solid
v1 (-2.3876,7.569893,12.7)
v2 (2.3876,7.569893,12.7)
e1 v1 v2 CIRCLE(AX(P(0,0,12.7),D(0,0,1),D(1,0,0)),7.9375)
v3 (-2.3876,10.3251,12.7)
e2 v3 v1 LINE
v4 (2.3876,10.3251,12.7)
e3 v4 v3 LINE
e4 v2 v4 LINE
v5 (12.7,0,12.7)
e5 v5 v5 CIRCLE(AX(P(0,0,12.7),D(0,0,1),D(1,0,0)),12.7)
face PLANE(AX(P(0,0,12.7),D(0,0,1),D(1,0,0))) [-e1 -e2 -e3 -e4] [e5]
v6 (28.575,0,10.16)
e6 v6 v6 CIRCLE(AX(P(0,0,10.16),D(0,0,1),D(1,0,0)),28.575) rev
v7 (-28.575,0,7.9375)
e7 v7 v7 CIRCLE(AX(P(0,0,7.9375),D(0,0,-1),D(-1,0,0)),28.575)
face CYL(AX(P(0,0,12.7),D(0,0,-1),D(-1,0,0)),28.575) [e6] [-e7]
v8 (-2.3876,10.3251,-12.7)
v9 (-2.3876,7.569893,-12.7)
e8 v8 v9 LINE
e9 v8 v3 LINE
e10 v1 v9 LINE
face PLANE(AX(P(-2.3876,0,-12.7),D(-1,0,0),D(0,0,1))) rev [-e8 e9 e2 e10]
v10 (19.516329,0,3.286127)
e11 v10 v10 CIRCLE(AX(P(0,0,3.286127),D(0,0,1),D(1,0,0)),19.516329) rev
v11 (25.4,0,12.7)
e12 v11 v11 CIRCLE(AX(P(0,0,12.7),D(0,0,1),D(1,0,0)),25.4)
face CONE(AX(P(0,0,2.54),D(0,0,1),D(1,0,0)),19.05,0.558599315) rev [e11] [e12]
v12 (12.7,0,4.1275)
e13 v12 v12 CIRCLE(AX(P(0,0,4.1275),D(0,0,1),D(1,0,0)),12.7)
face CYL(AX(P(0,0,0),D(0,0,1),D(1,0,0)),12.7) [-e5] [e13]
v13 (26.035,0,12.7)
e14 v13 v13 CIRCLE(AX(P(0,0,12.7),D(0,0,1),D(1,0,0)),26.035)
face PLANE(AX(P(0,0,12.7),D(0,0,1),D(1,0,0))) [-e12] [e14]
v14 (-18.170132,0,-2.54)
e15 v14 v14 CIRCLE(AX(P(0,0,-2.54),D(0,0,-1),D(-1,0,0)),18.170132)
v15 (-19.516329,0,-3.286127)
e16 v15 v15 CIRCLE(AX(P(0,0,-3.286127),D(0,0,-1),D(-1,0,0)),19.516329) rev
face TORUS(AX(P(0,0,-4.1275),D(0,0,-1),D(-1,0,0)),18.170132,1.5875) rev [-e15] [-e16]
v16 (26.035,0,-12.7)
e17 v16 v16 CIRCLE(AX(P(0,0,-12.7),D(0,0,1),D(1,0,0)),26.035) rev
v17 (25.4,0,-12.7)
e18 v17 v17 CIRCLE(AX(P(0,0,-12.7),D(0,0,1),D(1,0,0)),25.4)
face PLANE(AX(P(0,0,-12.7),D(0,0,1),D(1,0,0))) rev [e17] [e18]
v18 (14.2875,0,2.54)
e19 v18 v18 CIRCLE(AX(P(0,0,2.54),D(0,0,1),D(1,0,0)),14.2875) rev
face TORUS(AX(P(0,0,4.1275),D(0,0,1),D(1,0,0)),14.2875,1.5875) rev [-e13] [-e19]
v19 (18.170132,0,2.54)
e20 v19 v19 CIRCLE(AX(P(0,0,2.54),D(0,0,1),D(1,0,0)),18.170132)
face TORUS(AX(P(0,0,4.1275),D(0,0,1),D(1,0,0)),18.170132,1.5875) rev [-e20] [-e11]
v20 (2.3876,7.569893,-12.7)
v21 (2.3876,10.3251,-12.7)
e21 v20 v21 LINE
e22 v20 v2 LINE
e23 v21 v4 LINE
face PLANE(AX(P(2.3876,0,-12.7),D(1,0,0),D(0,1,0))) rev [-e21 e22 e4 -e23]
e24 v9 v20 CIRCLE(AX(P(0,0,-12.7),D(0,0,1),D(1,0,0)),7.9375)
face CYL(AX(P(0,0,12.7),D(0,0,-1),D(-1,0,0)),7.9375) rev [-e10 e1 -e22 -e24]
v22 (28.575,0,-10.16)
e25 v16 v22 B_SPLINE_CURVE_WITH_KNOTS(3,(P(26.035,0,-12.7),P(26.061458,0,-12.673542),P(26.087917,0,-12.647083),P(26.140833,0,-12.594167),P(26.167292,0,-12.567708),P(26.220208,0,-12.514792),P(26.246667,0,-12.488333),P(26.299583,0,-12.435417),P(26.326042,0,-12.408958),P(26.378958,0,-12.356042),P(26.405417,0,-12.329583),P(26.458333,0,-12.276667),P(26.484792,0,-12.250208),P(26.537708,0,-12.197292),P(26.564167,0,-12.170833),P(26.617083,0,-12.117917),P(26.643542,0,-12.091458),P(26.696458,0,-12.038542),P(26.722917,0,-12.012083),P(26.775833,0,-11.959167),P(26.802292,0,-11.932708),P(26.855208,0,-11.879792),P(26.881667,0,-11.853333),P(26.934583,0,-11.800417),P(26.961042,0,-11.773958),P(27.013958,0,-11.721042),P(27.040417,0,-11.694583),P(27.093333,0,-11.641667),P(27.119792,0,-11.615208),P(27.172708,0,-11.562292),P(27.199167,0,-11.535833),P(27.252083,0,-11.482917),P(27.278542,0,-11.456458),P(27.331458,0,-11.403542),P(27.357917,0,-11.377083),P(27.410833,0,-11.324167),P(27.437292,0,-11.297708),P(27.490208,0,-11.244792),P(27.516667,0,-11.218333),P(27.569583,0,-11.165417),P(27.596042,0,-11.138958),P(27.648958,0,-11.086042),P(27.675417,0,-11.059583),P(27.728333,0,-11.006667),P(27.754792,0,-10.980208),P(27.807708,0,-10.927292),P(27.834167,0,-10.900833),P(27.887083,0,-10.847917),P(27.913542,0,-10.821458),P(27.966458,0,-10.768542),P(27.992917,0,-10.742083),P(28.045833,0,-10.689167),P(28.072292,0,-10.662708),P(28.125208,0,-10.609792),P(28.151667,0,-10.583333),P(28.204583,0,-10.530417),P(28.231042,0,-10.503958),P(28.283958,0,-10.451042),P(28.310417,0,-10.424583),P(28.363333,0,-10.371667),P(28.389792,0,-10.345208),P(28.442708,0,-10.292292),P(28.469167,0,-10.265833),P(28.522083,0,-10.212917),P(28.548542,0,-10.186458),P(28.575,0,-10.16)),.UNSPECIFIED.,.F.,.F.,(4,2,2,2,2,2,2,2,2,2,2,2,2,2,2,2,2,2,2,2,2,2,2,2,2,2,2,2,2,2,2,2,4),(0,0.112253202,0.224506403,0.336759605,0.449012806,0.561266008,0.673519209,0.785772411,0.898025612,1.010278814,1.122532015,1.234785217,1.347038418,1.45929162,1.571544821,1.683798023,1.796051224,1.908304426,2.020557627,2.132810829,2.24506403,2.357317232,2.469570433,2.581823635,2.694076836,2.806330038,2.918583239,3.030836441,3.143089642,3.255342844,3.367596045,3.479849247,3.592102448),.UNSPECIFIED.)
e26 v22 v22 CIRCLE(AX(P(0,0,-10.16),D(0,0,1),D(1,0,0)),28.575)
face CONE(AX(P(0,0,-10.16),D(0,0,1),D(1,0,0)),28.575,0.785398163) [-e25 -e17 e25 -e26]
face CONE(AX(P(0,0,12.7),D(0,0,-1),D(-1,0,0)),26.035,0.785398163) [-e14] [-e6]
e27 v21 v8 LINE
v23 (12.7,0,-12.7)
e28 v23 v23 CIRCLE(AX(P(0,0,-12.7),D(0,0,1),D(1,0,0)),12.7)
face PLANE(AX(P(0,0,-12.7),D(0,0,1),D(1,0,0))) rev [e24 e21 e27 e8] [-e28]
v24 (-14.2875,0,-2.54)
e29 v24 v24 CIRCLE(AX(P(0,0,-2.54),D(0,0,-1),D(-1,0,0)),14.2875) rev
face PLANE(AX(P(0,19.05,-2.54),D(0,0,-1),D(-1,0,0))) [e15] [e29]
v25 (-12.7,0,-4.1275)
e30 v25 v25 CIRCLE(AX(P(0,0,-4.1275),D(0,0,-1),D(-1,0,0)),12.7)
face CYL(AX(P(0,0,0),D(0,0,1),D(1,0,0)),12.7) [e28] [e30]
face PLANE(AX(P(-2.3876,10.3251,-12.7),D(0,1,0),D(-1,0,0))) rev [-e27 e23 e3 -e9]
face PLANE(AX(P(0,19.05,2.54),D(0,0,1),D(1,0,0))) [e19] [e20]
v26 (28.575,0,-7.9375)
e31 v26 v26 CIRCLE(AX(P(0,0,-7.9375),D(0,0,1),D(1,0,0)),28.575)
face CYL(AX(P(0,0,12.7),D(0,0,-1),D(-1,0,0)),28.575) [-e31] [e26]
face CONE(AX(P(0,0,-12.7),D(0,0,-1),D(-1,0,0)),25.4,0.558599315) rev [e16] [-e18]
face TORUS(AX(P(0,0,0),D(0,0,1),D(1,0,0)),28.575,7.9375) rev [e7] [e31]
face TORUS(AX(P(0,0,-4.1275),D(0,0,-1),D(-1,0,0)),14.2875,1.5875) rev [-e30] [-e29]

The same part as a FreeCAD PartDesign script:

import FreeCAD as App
import Part
import Sketcher
from FreeCAD import Vector
Q = App.Units.Quantity


def edges_at(feature, points):
    """Names of the edges that pass closest to the given points."""
    edges = feature.Shape.Edges
    near = lambda p: min(range(len(edges)), key=lambda i: edges[i].distToShape(Part.Vertex(*p))[0])
    return sorted({f"Edge{near(p) + 1}" for p in points})

doc = App.newDocument("Part")
params = doc.addObject("Spreadsheet::Sheet", "Params")
for row, (alias, value) in enumerate([
    ("sketch1_diameter", "2.25 in"),
    ("sketch1_diameter2", "0.625 in"),
    ("pad1_length", "1 in"),
    ("sketch2_diameter", "0.625 in"),
    ("groove_angle", "360 deg"),
    ("sketch3_width", "0.5 in"),
    ("sketch3_height", "0.4 in"),
    ("sketch3_width2", "0.25 in"),
    ("groove2_angle", "360 deg"),
    ("chamfer_size", "0.1 in"),
    ("fillet_radius", "0.0625 in"),
    ("sketch4_width", "0.188 in"),
], start=1):
    params.set(f"A{row}", alias)
    params.set(f"B{row}", "=" + value)
    params.setAlias(f"B{row}", alias)

body = doc.addObject("PartDesign::Body", "Body")

# Sketch on XY plane
sketch1 = body.newObject("Sketcher::SketchObject", "Sketch")
sketch1.AttachmentSupport = (doc.getObject("XY_Plane"), [""])
sketch1.MapMode = "FlatFace"
sketch1.addGeometry(Part.Circle(Vector(0, 0, 0), Vector(0, 0, 1), 29), False)
sketch1.addGeometry(Part.Circle(Vector(0, 0, 0), Vector(0, 0, 1), 8), False)
sketch1.addConstraint(Sketcher.Constraint("Coincident", 0, 3, -1, 1))
sketch1.addConstraint(Sketcher.Constraint("Coincident", 1, 3, -1, 1))
sketch1.addConstraint(Sketcher.Constraint("Diameter", 0, Q("2.25 in")))
sketch1.addConstraint(Sketcher.Constraint("Diameter", 1, Q("0.625 in")))
sketch1.setExpression("Constraints[2]", "Params.sketch1_diameter")
sketch1.setExpression("Constraints[3]", "Params.sketch1_diameter2")
pad1 = body.newObject("PartDesign::Pad", "Pad")
pad1.Profile = sketch1
pad1.setExpression("Length", "Params.pad1_length")
pad1.Midplane = True

# Sketch on YZ plane
sketch2 = body.newObject("Sketcher::SketchObject", "Sketch001")
sketch2.AttachmentSupport = (doc.getObject("YZ_Plane"), [""])
sketch2.MapMode = "FlatFace"
sketch2.addGeometry(Part.Circle(Vector(29, 0, 0), Vector(0, 0, 1), 8), False)
sketch2.addConstraint(Sketcher.Constraint("PointOnObject", 0, 3, -1))
sketch2.addConstraint(Sketcher.Constraint("Diameter", 0, Q("0.625 in")))
sketch2.addConstraint(Sketcher.Constraint("DistanceX", -1, 1, 0, 3, Q("1.125 in")))
sketch2.setExpression("Constraints[1]", "Params.sketch2_diameter")
groove = body.newObject("PartDesign::Groove", "Groove")
groove.Profile = sketch2
groove.ReferenceAxis = (sketch2, ["V_Axis"])
groove.setExpression("Angle", "Params.groove_angle")

# Sketch on YZ plane
sketch3 = body.newObject("Sketcher::SketchObject", "Sketch002")
sketch3.AttachmentSupport = (doc.getObject("YZ_Plane"), [""])
sketch3.MapMode = "FlatFace"
sketch3.addGeometry(Part.LineSegment(Vector(25, -13, 0), Vector(19, -3, 0)), False)
sketch3.addGeometry(Part.LineSegment(Vector(19, -3, 0), Vector(13, -3, 0)), False)
sketch3.addGeometry(Part.LineSegment(Vector(13, -3, 0), Vector(13, -13, 0)), False)
sketch3.addGeometry(Part.LineSegment(Vector(13, -13, 0), Vector(25, -13, 0)), False)
sketch3.addGeometry(Part.LineSegment(Vector(25, 13, 0), Vector(13, 13, 0)), False)
sketch3.addGeometry(Part.LineSegment(Vector(13, 13, 0), Vector(13, 3, 0)), False)
sketch3.addGeometry(Part.LineSegment(Vector(13, 3, 0), Vector(19, 3, 0)), False)
sketch3.addGeometry(Part.LineSegment(Vector(19, 3, 0), Vector(25, 13, 0)), False)
sketch3.addConstraint(Sketcher.Constraint("Coincident", 0, 2, 1, 1))
sketch3.addConstraint(Sketcher.Constraint("Coincident", 1, 2, 2, 1))
sketch3.addConstraint(Sketcher.Constraint("Coincident", 2, 2, 3, 1))
sketch3.addConstraint(Sketcher.Constraint("Coincident", 3, 2, 0, 1))
sketch3.addConstraint(Sketcher.Constraint("Coincident", 4, 2, 5, 1))
sketch3.addConstraint(Sketcher.Constraint("Coincident", 5, 2, 6, 1))
sketch3.addConstraint(Sketcher.Constraint("Coincident", 6, 2, 7, 1))
sketch3.addConstraint(Sketcher.Constraint("Coincident", 7, 2, 4, 1))
sketch3.addConstraint(Sketcher.Constraint("Horizontal", 1))
sketch3.addConstraint(Sketcher.Constraint("Vertical", 2))
sketch3.addConstraint(Sketcher.Constraint("Horizontal", 3))
sketch3.addConstraint(Sketcher.Constraint("Horizontal", 4))
sketch3.addConstraint(Sketcher.Constraint("Vertical", 5))
sketch3.addConstraint(Sketcher.Constraint("Horizontal", 6))
sketch3.addConstraint(Sketcher.Constraint("Symmetric", 2, 2, 4, 2, -1))
sketch3.addConstraint(Sketcher.Constraint("Symmetric", 0, 2, 6, 2, -1))
sketch3.addConstraint(Sketcher.Constraint("Vertical", 3, 2, 7, 2))
sketch3.addConstraint(Sketcher.Constraint("DistanceX", 3, 1, 3, 2, Q("0.5 in")))
sketch3.addConstraint(Sketcher.Constraint("DistanceY", 2, 2, 2, 1, Q("0.4 in")))
sketch3.addConstraint(Sketcher.Constraint("DistanceX", -1, 1, 3, 2, Q("1 in")))
sketch3.addConstraint(Sketcher.Constraint("DistanceY", 2, 2, 4, 2, Q("1 in")))
sketch3.addConstraint(Sketcher.Constraint("DistanceX", 1, 2, 1, 1, Q("0.25 in")))
sketch3.setExpression("Constraints[17]", "Params.sketch3_width")
sketch3.setExpression("Constraints[18]", "Params.sketch3_height")
sketch3.setExpression("Constraints[21]", "Params.sketch3_width2")
groove2 = body.newObject("PartDesign::Groove", "Groove001")
groove2.Profile = sketch3
groove2.ReferenceAxis = (sketch3, ["V_Axis"])
groove2.setExpression("Angle", "Params.groove2_angle")
doc.recompute()

chamfer = body.newObject("PartDesign::Chamfer", "Chamfer")
chamfer.Base = (groove2, edges_at(groove2, [(-28.575, 0, -12.7), (-28.575, 0, 12.7)]))
chamfer.setExpression("Size", "Params.chamfer_size")
doc.recompute()

fillet = body.newObject("PartDesign::Fillet", "Fillet")
fillet.Base = (chamfer, edges_at(chamfer, [
    (-12.7, 0, -2.54),
    (-19.05, 0, -2.54),
    (-19.05, 0, 2.54),
    (-12.7, 0, 2.54),
]))
fillet.setExpression("Radius", "Params.fillet_radius")

# Sketch on XY plane
sketch4 = body.newObject("Sketcher::SketchObject", "Sketch003")
sketch4.AttachmentSupport = (doc.getObject("XY_Plane"), [""])
sketch4.MapMode = "FlatFace"
sketch4.addGeometry(Part.LineSegment(Vector(-2.4, 10.3, 0), Vector(-2.4, 0, 0)), False)
sketch4.addGeometry(Part.LineSegment(Vector(-2.4, 0, 0), Vector(2.4, 0, 0)), False)
sketch4.addGeometry(Part.LineSegment(Vector(2.4, 0, 0), Vector(2.4, 10.3, 0)), False)
sketch4.addGeometry(Part.LineSegment(Vector(2.4, 10.3, 0), Vector(-2.4, 10.3, 0)), False)
sketch4.addConstraint(Sketcher.Constraint("Coincident", 0, 2, 1, 1))
sketch4.addConstraint(Sketcher.Constraint("Coincident", 1, 2, 2, 1))
sketch4.addConstraint(Sketcher.Constraint("Coincident", 2, 2, 3, 1))
sketch4.addConstraint(Sketcher.Constraint("Coincident", 3, 2, 0, 1))
sketch4.addConstraint(Sketcher.Constraint("Vertical", 0))
sketch4.addConstraint(Sketcher.Constraint("Horizontal", 1))
sketch4.addConstraint(Sketcher.Constraint("Vertical", 2))
sketch4.addConstraint(Sketcher.Constraint("Horizontal", 3))
sketch4.addConstraint(Sketcher.Constraint("Symmetric", 0, 2, 1, 2, -1, 1))
sketch4.addConstraint(Sketcher.Constraint("DistanceX", 1, 1, 1, 2, Q("0.188 in")))
sketch4.addConstraint(Sketcher.Constraint("DistanceY", 0, 2, 0, 1, Q("0.4065 in")))
sketch4.setExpression("Constraints[9]", "Params.sketch4_width")
pocket1 = body.newObject("PartDesign::Pocket", "Pocket")
pocket1.Profile = sketch4
pocket1.Type = "ThroughAll"
pocket1.Midplane = True

doc.recompute()
